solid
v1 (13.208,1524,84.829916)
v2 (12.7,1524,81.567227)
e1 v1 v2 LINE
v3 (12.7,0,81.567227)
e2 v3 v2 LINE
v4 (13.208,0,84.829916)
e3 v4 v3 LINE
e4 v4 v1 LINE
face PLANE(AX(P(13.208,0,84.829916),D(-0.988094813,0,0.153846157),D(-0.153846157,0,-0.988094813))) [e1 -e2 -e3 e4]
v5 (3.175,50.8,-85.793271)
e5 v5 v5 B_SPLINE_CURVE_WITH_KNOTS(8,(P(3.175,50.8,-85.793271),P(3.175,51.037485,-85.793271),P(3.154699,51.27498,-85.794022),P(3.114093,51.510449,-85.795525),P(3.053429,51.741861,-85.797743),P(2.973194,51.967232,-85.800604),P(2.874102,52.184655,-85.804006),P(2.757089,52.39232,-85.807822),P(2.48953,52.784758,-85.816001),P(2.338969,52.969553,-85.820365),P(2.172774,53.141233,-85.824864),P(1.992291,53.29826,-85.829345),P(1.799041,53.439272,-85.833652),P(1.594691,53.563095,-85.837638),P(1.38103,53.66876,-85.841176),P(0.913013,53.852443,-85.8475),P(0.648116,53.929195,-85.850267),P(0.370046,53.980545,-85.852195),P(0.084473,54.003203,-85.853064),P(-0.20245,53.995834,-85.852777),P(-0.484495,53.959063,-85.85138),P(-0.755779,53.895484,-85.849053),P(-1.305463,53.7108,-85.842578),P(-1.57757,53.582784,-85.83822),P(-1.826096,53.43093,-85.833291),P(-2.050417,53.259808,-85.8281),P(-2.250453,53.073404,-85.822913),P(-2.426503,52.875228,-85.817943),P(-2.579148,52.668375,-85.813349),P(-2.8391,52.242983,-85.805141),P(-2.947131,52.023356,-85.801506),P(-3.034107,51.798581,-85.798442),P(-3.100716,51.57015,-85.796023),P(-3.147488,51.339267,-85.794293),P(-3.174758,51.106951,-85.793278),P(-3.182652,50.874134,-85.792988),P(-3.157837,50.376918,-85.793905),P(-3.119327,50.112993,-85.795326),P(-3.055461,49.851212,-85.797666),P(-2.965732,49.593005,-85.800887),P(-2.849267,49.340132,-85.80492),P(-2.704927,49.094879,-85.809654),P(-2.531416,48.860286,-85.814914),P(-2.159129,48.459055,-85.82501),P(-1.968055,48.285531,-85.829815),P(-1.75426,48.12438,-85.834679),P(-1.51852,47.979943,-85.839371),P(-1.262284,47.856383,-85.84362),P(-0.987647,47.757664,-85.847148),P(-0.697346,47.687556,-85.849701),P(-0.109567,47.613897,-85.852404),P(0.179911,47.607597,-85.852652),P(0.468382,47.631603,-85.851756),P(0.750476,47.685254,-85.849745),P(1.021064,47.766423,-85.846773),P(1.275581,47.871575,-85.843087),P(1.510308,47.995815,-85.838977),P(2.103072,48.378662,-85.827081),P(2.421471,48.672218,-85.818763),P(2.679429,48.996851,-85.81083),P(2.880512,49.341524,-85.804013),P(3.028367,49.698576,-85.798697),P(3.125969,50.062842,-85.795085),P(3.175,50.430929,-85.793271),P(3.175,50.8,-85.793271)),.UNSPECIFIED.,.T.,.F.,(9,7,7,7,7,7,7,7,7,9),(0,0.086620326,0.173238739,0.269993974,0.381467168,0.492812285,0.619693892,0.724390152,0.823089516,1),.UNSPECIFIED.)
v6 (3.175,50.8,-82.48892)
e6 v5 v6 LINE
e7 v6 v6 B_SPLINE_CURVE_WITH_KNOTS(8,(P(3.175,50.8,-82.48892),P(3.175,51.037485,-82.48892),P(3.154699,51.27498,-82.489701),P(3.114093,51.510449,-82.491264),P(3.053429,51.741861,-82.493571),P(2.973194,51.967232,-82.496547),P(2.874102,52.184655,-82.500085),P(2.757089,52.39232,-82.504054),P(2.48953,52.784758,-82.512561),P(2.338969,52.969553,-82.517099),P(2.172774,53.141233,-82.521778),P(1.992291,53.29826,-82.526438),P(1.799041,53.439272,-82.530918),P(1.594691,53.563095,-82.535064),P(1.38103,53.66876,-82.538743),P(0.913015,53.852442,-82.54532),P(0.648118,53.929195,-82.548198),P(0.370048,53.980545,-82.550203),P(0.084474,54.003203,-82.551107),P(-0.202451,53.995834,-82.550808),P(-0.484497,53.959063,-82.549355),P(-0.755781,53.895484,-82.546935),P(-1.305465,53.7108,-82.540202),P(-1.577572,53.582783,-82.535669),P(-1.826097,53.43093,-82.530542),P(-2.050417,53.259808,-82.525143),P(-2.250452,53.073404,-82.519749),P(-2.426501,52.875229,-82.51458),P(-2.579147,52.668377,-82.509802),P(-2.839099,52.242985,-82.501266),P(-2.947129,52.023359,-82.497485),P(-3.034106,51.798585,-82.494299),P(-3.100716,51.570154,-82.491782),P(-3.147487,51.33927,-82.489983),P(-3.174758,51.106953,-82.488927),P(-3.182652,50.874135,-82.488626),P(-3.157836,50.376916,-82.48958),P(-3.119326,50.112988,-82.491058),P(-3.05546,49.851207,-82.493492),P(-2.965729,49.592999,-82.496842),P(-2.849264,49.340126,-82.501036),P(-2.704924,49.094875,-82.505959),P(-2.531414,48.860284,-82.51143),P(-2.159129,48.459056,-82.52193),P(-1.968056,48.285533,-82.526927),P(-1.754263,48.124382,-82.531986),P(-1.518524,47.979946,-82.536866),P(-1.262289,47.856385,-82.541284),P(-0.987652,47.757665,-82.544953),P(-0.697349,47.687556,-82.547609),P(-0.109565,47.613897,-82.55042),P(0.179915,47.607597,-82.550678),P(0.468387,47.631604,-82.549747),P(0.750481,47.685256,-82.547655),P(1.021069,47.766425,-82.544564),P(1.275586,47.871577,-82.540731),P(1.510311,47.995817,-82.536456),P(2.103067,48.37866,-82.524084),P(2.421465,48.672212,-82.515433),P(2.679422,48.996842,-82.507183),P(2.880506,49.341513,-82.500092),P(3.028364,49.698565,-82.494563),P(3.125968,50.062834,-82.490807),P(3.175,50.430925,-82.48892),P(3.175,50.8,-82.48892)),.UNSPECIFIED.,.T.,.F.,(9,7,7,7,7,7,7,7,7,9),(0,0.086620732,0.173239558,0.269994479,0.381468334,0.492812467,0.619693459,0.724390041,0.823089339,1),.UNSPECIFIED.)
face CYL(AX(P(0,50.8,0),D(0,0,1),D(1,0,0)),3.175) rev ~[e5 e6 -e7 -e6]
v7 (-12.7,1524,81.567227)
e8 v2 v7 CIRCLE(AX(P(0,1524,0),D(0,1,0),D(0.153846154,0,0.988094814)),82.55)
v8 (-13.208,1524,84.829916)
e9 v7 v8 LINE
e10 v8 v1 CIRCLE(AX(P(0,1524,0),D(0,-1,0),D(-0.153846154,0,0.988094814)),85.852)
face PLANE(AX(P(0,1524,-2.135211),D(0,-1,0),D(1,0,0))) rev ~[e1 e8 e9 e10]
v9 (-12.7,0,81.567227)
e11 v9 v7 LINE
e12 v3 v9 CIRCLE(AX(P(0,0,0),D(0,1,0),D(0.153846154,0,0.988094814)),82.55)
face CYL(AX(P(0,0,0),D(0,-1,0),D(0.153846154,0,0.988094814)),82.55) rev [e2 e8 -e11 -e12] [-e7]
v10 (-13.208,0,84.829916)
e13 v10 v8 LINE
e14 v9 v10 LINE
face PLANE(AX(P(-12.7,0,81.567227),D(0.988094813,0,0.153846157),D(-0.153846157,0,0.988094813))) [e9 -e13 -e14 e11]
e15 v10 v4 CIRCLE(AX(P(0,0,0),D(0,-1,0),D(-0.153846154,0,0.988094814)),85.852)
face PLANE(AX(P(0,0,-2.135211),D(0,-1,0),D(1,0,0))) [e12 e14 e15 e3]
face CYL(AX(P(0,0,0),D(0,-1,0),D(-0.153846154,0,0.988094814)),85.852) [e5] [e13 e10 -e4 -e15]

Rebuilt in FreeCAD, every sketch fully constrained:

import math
import FreeCAD as App
import Part
import Sketcher
Q = App.Units.Quantity

doc = App.newDocument("Part")
body = doc.addObject("PartDesign::Body", "Body")

# Sketch on XZ plane
sketch1 = doc.addObject("Sketcher::SketchObject", "Sketch")
body.addObject(sketch1)
sketch1.AttachmentSupport = (doc.XZ_Plane, [""])
sketch1.MapMode = "FlatFace"
sketch1.addGeometry([
    Part.LineSegment(App.Vector(-12.7, 81.6, 0), App.Vector(-13.2, 84.8, 0)),
    Part.ArcOfCircle(Part.Circle(App.Vector(0, 0, 0), App.Vector(0, 0, 1), 85.9), math.radians(99), math.radians(441)),
    Part.LineSegment(App.Vector(13.2, 84.8, 0), App.Vector(12.7, 81.6, 0)),
    Part.ArcOfCircle(Part.Circle(App.Vector(0, 0, 0), App.Vector(0, 0, 1), 82.6), math.radians(99), math.radians(441)),
], False)
sketch1.addConstraint([
    Sketcher.Constraint("Coincident", 0, 2, 1, 1),
    Sketcher.Constraint("Coincident", 1, 2, 2, 1),
    Sketcher.Constraint("Coincident", 2, 2, 3, 2),
    Sketcher.Constraint("Coincident", 3, 1, 0, 1),
    Sketcher.Constraint("Coincident", 1, 3, -1, 1),
    Sketcher.Constraint("Coincident", 3, 3, -1, 1),
    Sketcher.Constraint("Horizontal", 0, 2, 1, 2),
    Sketcher.Constraint("Horizontal", 2, 2, 3, 1),
    Sketcher.Constraint("Radius", 1, Q("3.38 in")),
    Sketcher.Constraint("Radius", 3, Q("3.25 in")),
    Sketcher.Constraint("DistanceX", 3, 1, 2, 2, Q("1 in")),
    Sketcher.Constraint("DistanceX", 0, 2, -1, 1, Q("0.52 in")),
])
pad1 = doc.addObject("PartDesign::Pad", "Pad")
body.addObject(pad1)
pad1.Profile = sketch1
pad1.Length = Q("60 in")
pad1.Reversed = True

# Sketch on XY plane
sketch2 = doc.addObject("Sketcher::SketchObject", "Sketch001")
body.addObject(sketch2)
sketch2.AttachmentSupport = (doc.XY_Plane, [""])
sketch2.MapMode = "FlatFace"
sketch2.addGeometry(Part.Circle(App.Vector(0, 50.8, 0), App.Vector(0, 0, 1), 3.2), False)
sketch2.addConstraint([
    Sketcher.Constraint("PointOnObject", 0, 3, -2),
    Sketcher.Constraint("Diameter", 0, Q("0.25 in")),
    Sketcher.Constraint("DistanceY", -1, 1, 0, 3, Q("2 in")),
])
pocket1 = doc.addObject("PartDesign::Pocket", "Pocket")
body.addObject(pocket1)
pocket1.Profile = sketch2
pocket1.Length = Q("30 in")
pocket1.Midplane = True

doc.recompute()
